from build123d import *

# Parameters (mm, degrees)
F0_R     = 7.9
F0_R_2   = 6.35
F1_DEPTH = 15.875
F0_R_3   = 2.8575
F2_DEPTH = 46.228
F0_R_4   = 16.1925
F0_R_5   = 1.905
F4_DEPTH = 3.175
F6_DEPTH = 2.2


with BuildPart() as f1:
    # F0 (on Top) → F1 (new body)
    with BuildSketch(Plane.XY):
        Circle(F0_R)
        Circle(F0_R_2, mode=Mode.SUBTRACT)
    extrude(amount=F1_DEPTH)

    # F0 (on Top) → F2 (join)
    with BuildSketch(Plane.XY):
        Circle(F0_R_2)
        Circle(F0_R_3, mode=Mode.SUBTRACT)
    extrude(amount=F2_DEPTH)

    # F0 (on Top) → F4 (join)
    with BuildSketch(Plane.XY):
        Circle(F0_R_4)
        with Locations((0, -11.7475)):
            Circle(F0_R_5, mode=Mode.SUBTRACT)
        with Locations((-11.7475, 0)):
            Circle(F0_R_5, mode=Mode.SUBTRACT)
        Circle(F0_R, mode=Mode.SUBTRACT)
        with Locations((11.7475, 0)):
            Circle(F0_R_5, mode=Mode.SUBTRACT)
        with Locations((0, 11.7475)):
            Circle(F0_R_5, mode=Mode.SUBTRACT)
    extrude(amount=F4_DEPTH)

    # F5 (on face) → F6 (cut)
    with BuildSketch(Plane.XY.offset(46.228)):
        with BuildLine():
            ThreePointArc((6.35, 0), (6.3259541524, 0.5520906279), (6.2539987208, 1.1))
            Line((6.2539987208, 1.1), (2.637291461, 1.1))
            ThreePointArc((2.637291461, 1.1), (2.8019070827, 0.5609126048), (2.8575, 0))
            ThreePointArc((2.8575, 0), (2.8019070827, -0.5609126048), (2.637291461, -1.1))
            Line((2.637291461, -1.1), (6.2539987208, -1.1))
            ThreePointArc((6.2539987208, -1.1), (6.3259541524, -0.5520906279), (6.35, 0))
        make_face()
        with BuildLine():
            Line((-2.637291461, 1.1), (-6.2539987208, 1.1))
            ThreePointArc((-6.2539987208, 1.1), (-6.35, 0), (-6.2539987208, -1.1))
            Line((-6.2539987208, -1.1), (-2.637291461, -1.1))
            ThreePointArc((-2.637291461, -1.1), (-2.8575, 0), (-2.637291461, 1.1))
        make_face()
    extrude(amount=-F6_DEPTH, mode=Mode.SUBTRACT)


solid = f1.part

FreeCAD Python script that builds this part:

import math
import FreeCAD as App
import Part
import Sketcher
from FreeCAD import Vector
Q = App.Units.Quantity

doc = App.newDocument("Part")
body = doc.addObject("PartDesign::Body", "Body")

# Sketch on XY plane
sketch1 = body.newObject("Sketcher::SketchObject", "Sketch")
sketch1.AttachmentSupport = (doc.getObject("XY_Plane"), [""])
sketch1.MapMode = "FlatFace"
sketch1.addGeometry([
    Part.Circle(Vector(0, 0, 0), Vector(0, 0, 1), 8),
    Part.Circle(Vector(0, 0, 0), Vector(0, 0, 1), 6),
], False)
sketch1.addConstraint([
    Sketcher.Constraint("Coincident", 0, 3, -1, 1),
    Sketcher.Constraint("Coincident", 1, 3, -1, 1),
    Sketcher.Constraint("Diameter", 1, Q("0.5 in")),
    Sketcher.Constraint("Diameter", 0, 15.8),
])
pad1 = body.newObject("PartDesign::Pad", "Pad")
pad1.Profile = sketch1
pad1.Length = Q("0.625 in")

# Sketch on XY plane
sketch2 = body.newObject("Sketcher::SketchObject", "Sketch001")
sketch2.AttachmentSupport = (doc.getObject("XY_Plane"), [""])
sketch2.MapMode = "FlatFace"
sketch2.addGeometry([
    Part.Circle(Vector(0, 0, 0), Vector(0, 0, 1), 6.3),
    Part.Circle(Vector(0, 0, 0), Vector(0, 0, 1), 2.9),
], False)
sketch2.addConstraint([
    Sketcher.Constraint("Coincident", 0, 3, -1, 1),
    Sketcher.Constraint("Coincident", 1, 3, -1, 1),
    Sketcher.Constraint("Diameter", 0, Q("0.5 in")),
    Sketcher.Constraint("Diameter", 1, Q("0.225 in")),
])
pad2 = body.newObject("PartDesign::Pad", "Pad001")
pad2.Profile = sketch2
pad2.Length = Q("1.82 in")

# Sketch on XY plane
sketch3 = body.newObject("Sketcher::SketchObject", "Sketch002")
sketch3.AttachmentSupport = (doc.getObject("XY_Plane"), [""])
sketch3.MapMode = "FlatFace"
sketch3.addGeometry([
    Part.Circle(Vector(0, 0, 0), Vector(0, 0, 1), 16.2),  # 0
    Part.Circle(Vector(0, -11.7, 0), Vector(0, 0, 1), 1.9),  # 1
    Part.Circle(Vector(-11.7, 0, 0), Vector(0, 0, 1), 1.9),  # 2
    Part.Circle(Vector(0, 0, 0), Vector(0, 0, 1), 7.9),  # 3
    Part.Circle(Vector(11.7, 0, 0), Vector(0, 0, 1), 1.9),  # 4
    Part.Circle(Vector(0, 11.7, 0), Vector(0, 0, 1), 1.9),  # 5
], False)
sketch3.addConstraint([
    Sketcher.Constraint("Coincident", 0, 3, -1, 1),
    Sketcher.Constraint("Coincident", 3, 3, -1, 1),
    Sketcher.Constraint("Equal", 1, 2),
    Sketcher.Constraint("Equal", 2, 4),
    Sketcher.Constraint("Equal", 4, 5),
    Sketcher.Constraint("Symmetric", 2, 3, 4, 3, -1, 1),
    Sketcher.Constraint("Symmetric", 1, 3, 5, 3, -1, 1),
    Sketcher.Constraint("PointOnObject", 1, 3, -2),
    Sketcher.Constraint("PointOnObject", 2, 3, -1),
    Sketcher.Constraint("Diameter", 1, Q("0.15 in")),
    Sketcher.Constraint("Diameter", 0, Q("1.275 in")),
    Sketcher.Constraint("Diameter", 3, 15.8),
    Sketcher.Constraint("DistanceX", 2, 3, 4, 3, Q("0.925 in")),
    Sketcher.Constraint("DistanceY", 1, 3, 5, 3, Q("0.925 in")),
])
pad3 = body.newObject("PartDesign::Pad", "Pad002")
pad3.Profile = sketch3
pad3.Length = Q("0.125 in")

# Sketch on XY plane
sketch4 = body.newObject("Sketcher::SketchObject", "Sketch003")
sketch4.AttachmentSupport = (doc.getObject("XY_Plane"), [""])
sketch4.MapMode = "FlatFace"
sketch4.AttachmentOffset = App.Placement(Vector(0, 0, 1.82 * 25.4), App.Rotation())
sketch4.addGeometry([
    Part.ArcOfCircle(Part.Circle(Vector(0, 0, 0), Vector(0, 0, 1), 6.4), math.radians(0), math.radians(9.98)),  # 0
    Part.LineSegment(Vector(6.3, 1.1, 0), Vector(2.6, 1.1, 0)),  # 1
    Part.ArcOfCircle(Part.Circle(Vector(0, 0, 0), Vector(0, 0, 1), 2.9), math.radians(0), math.radians(23)),  # 2
    Part.ArcOfCircle(Part.Circle(Vector(0, 0, 0), Vector(0, 0, 1), 2.9), math.radians(-23), math.radians(0)),  # 3
    Part.LineSegment(Vector(2.6, -1.1, 0), Vector(6.3, -1.1, 0)),  # 4
    Part.ArcOfCircle(Part.Circle(Vector(0, 0, 0), Vector(0, 0, 1), 6.4), math.radians(-9.98), math.radians(0)),  # 5
    Part.LineSegment(Vector(-2.6, 1.1, 0), Vector(-6.3, 1.1, 0)),  # 6
    Part.ArcOfCircle(Part.Circle(Vector(0, 0, 0), Vector(0, 0, 1), 6.3), math.radians(170.02), math.radians(189.98)),  # 7
    Part.LineSegment(Vector(-6.3, -1.1, 0), Vector(-2.6, -1.1, 0)),  # 8
    Part.ArcOfCircle(Part.Circle(Vector(0, 0, 0), Vector(0, 0, 1), 2.9), math.radians(157), math.radians(203)),  # 9
], False)
sketch4.addConstraint([
    Sketcher.Constraint("Coincident", 0, 2, 1, 1),
    Sketcher.Constraint("Coincident", 1, 2, 2, 2),
    Sketcher.Constraint("Tangent", 2, 1, 3, 2),
    Sketcher.Constraint("Coincident", 3, 1, 4, 1),
    Sketcher.Constraint("Coincident", 4, 2, 5, 1),
    Sketcher.Constraint("Tangent", 5, 2, 0, 1),
    Sketcher.Constraint("Coincident", 6, 2, 7, 1),
    Sketcher.Constraint("Coincident", 7, 2, 8, 1),
    Sketcher.Constraint("Coincident", 8, 2, 9, 2),
    Sketcher.Constraint("Coincident", 9, 1, 6, 1),
    Sketcher.Constraint("Horizontal", 1),
    Sketcher.Constraint("Horizontal", 4),
    Sketcher.Constraint("Horizontal", 6),
    Sketcher.Constraint("Horizontal", 8),
    Sketcher.Constraint("Coincident", 0, 3, -1, 1),
    Sketcher.Constraint("Coincident", 2, 3, -1, 1),
    Sketcher.Constraint("Coincident", 7, 3, -1, 1),
    Sketcher.Constraint("Coincident", 9, 3, -1, 1),
    Sketcher.Constraint("Equal", 2, 3),
    Sketcher.Constraint("Equal", 0, 5),
    Sketcher.Constraint("Equal", 5, 7),
    Sketcher.Constraint("Equal", 3, 9),
    Sketcher.Constraint("PointOnObject", 2, 1, -1),
    Sketcher.Constraint("PointOnObject", 5, 2, -1),
    Sketcher.Constraint("Horizontal", 1, 2, 6, 2),
    Sketcher.Constraint("Horizontal", 4, 2, 7, 2),
    Sketcher.Constraint("Vertical", 1, 2, 3, 1),
    Sketcher.Constraint("Radius", 0, Q("0.25 in")),
    Sketcher.Constraint("Radius", 2, Q("0.1125 in")),
    Sketcher.Constraint("DistanceX", -1, 1, 0, 2, 6.253999),
])
pocket1 = body.newObject("PartDesign::Pocket", "Pocket")
pocket1.Profile = sketch4
pocket1.Length = 2.2

doc.recompute()
